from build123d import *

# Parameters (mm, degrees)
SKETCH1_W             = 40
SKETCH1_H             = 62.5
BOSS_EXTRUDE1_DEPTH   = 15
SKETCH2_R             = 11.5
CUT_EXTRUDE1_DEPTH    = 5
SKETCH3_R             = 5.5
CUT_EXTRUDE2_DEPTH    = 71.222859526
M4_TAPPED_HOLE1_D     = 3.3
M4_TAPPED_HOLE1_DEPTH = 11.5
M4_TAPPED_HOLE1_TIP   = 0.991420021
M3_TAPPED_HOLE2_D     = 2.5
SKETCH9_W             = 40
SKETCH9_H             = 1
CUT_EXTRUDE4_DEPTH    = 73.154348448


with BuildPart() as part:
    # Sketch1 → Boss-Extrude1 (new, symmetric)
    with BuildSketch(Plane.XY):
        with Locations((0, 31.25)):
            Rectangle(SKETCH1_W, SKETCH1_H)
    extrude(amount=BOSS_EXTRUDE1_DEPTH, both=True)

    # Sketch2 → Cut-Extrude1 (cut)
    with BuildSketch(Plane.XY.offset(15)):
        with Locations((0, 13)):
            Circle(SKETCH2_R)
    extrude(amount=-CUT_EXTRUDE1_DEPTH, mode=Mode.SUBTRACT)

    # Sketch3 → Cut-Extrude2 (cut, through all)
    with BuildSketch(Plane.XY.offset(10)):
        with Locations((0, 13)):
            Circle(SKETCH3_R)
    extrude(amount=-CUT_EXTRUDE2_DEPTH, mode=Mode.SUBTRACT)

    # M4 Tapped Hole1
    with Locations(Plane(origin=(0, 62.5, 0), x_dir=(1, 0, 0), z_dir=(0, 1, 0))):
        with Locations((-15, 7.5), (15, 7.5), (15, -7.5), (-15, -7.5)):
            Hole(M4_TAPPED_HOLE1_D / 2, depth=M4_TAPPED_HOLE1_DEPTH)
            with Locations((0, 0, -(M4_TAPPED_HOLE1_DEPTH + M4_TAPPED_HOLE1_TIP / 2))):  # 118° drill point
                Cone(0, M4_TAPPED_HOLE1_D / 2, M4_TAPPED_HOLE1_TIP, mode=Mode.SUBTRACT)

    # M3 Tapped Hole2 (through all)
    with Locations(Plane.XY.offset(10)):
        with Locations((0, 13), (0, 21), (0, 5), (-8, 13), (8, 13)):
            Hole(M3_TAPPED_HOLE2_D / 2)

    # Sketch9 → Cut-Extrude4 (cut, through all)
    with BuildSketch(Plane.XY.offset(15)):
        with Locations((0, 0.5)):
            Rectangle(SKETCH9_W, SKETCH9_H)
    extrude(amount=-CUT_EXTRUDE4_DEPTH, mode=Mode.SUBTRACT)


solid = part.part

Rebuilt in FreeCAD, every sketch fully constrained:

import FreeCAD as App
import Part
import Sketcher

doc = App.newDocument("Part")
body = doc.addObject("PartDesign::Body", "Body")

# Sketch on XY plane
sketch1 = doc.addObject("Sketcher::SketchObject", "Sketch")
body.addObject(sketch1)
sketch1.AttachmentSupport = (doc.XY_Plane, [""])
sketch1.MapMode = "FlatFace"
sketch1.addGeometry(Part.LineSegment(App.Vector(-20, 62, 0), App.Vector(-20, 0, 0)), False)
sketch1.addGeometry(Part.LineSegment(App.Vector(-20, 0, 0), App.Vector(20, 0, 0)), False)
sketch1.addGeometry(Part.LineSegment(App.Vector(20, 0, 0), App.Vector(20, 62, 0)), False)
sketch1.addGeometry(Part.LineSegment(App.Vector(20, 62, 0), App.Vector(-20, 62, 0)), False)
sketch1.addConstraint(Sketcher.Constraint("Coincident", 0, 2, 1, 1))
sketch1.addConstraint(Sketcher.Constraint("Coincident", 1, 2, 2, 1))
sketch1.addConstraint(Sketcher.Constraint("Coincident", 2, 2, 3, 1))
sketch1.addConstraint(Sketcher.Constraint("Coincident", 3, 2, 0, 1))
sketch1.addConstraint(Sketcher.Constraint("Vertical", 0))
sketch1.addConstraint(Sketcher.Constraint("Horizontal", 1))
sketch1.addConstraint(Sketcher.Constraint("Vertical", 2))
sketch1.addConstraint(Sketcher.Constraint("Horizontal", 3))
sketch1.addConstraint(Sketcher.Constraint("Symmetric", 0, 2, 1, 2, -1, 1))
sketch1.addConstraint(Sketcher.Constraint("DistanceX", 1, 1, 1, 2, 40.0))
sketch1.addConstraint(Sketcher.Constraint("DistanceY", 0, 2, 0, 1, 62.5))
pad1 = doc.addObject("PartDesign::Pad", "Pad")
body.addObject(pad1)
pad1.Profile = sketch1
pad1.Length = 30
pad1.Midplane = True

# Sketch on XY plane
sketch2 = doc.addObject("Sketcher::SketchObject", "Sketch001")
body.addObject(sketch2)
sketch2.AttachmentSupport = (doc.XY_Plane, [""])
sketch2.MapMode = "FlatFace"
sketch2.AttachmentOffset = App.Placement(App.Vector(0, 0, 15), App.Rotation())
sketch2.addGeometry(Part.Circle(App.Vector(0, 13, 0), App.Vector(0, 0, 1), 12), False)
sketch2.addConstraint(Sketcher.Constraint("PointOnObject", 0, 3, -2))
sketch2.addConstraint(Sketcher.Constraint("Diameter", 0, 23.0))
sketch2.addConstraint(Sketcher.Constraint("DistanceY", -1, 1, 0, 3, 13.0))
pocket1 = doc.addObject("PartDesign::Pocket", "Pocket")
body.addObject(pocket1)
pocket1.Profile = sketch2
pocket1.Length = 5

# Sketch on XY plane
sketch3 = doc.addObject("Sketcher::SketchObject", "Sketch002")
body.addObject(sketch3)
sketch3.AttachmentSupport = (doc.XY_Plane, [""])
sketch3.MapMode = "FlatFace"
sketch3.AttachmentOffset = App.Placement(App.Vector(0, 0, 10), App.Rotation())
sketch3.addGeometry(Part.Circle(App.Vector(0, 13, 0), App.Vector(0, 0, 1), 6), False)
sketch3.addConstraint(Sketcher.Constraint("PointOnObject", 0, 3, -2))
sketch3.addConstraint(Sketcher.Constraint("Diameter", 0, 11.0))
sketch3.addConstraint(Sketcher.Constraint("DistanceY", -1, 1, 0, 3, 13.0))
pocket2 = doc.addObject("PartDesign::Pocket", "Pocket001")
body.addObject(pocket2)
pocket2.Profile = sketch3
pocket2.Type = "ThroughAll"

# Sketch on XZ plane
sketch4 = doc.addObject("Sketcher::SketchObject", "Sketch003")
body.addObject(sketch4)
sketch4.AttachmentSupport = (doc.XZ_Plane, [""])
sketch4.MapMode = "FlatFace"
sketch4.AttachmentOffset = App.Placement(App.Vector(0, 0, -62.5), App.Rotation())
sketch4.addGeometry(Part.Circle(App.Vector(-15, -7.5, 0), App.Vector(0, 0, 1), 1.6), False)
sketch4.addGeometry(Part.Circle(App.Vector(15, -7.5, 0), App.Vector(0, 0, 1), 1.6), False)
sketch4.addGeometry(Part.Circle(App.Vector(15, 7.5, 0), App.Vector(0, 0, 1), 1.6), False)
sketch4.addGeometry(Part.Circle(App.Vector(-15, 7.5, 0), App.Vector(0, 0, 1), 1.6), False)
sketch4.addConstraint(Sketcher.Constraint("Equal", 0, 1))
sketch4.addConstraint(Sketcher.Constraint("Equal", 1, 2))
sketch4.addConstraint(Sketcher.Constraint("Equal", 2, 3))
sketch4.addConstraint(Sketcher.Constraint("Symmetric", 0, 3, 2, 3, -1, 1))
sketch4.addConstraint(Sketcher.Constraint("Symmetric", 1, 3, 3, 3, -1, 1))
sketch4.addConstraint(Sketcher.Constraint("Symmetric", 0, 3, 1, 3, -2))
sketch4.addConstraint(Sketcher.Constraint("Diameter", 0, 3.3))
sketch4.addConstraint(Sketcher.Constraint("DistanceX", 0, 3, -1, 1, 15.0))
sketch4.addConstraint(Sketcher.Constraint("DistanceY", 1, 3, 2, 3, 15.0))
doc.recompute()
hole = doc.addObject("PartDesign::Hole", "Hole")
body.addObject(hole)
hole.Profile = sketch4
hole.ThreadType = "None"
hole.Diameter = 3.3
hole.DepthType = "Dimension"
hole.Depth = 11.5
hole.DrillPoint = "Angled"
hole.DrillPointAngle = 118
hole.Reversed = True

# Sketch on XY plane
sketch5 = doc.addObject("Sketcher::SketchObject", "Sketch004")
body.addObject(sketch5)
sketch5.AttachmentSupport = (doc.XY_Plane, [""])
sketch5.MapMode = "FlatFace"
sketch5.AttachmentOffset = App.Placement(App.Vector(0, 0, 10), App.Rotation())
sketch5.addGeometry(Part.Circle(App.Vector(0, 13, 0), App.Vector(0, 0, 1), 1.2), False)
sketch5.addGeometry(Part.Circle(App.Vector(0, 21, 0), App.Vector(0, 0, 1), 1.2), False)
sketch5.addGeometry(Part.Circle(App.Vector(0, 5, 0), App.Vector(0, 0, 1), 1.2), False)
sketch5.addGeometry(Part.Circle(App.Vector(-8, 13, 0), App.Vector(0, 0, 1), 1.2), False)
sketch5.addGeometry(Part.Circle(App.Vector(8, 13, 0), App.Vector(0, 0, 1), 1.2), False)
sketch5.addConstraint(Sketcher.Constraint("Equal", 0, 1))
sketch5.addConstraint(Sketcher.Constraint("Equal", 1, 2))
sketch5.addConstraint(Sketcher.Constraint("Equal", 2, 3))
sketch5.addConstraint(Sketcher.Constraint("Equal", 3, 4))
sketch5.addConstraint(Sketcher.Constraint("Symmetric", 3, 3, 4, 3, -2))
sketch5.addConstraint(Sketcher.Constraint("PointOnObject", 0, 3, -2))
sketch5.addConstraint(Sketcher.Constraint("PointOnObject", 1, 3, -2))
sketch5.addConstraint(Sketcher.Constraint("PointOnObject", 2, 3, -2))
sketch5.addConstraint(Sketcher.Constraint("Horizontal", 0, 3, 3, 3))
sketch5.addConstraint(Sketcher.Constraint("Diameter", 0, 2.5))
sketch5.addConstraint(Sketcher.Constraint("DistanceY", -1, 1, 0, 3, 13.0))
sketch5.addConstraint(Sketcher.Constraint("DistanceY", -1, 1, 1, 3, 21.0))
sketch5.addConstraint(Sketcher.Constraint("DistanceY", -1, 1, 2, 3, 5.0))
sketch5.addConstraint(Sketcher.Constraint("DistanceX", 3, 3, -1, 1, 8.0))
doc.recompute()
hole2 = doc.addObject("PartDesign::Hole", "Hole001")
body.addObject(hole2)
hole2.Profile = sketch5
hole2.ThreadType = "None"
hole2.Diameter = 2.5
hole2.DepthType = "ThroughAll"

# Sketch on XY plane
sketch6 = doc.addObject("Sketcher::SketchObject", "Sketch005")
body.addObject(sketch6)
sketch6.AttachmentSupport = (doc.XY_Plane, [""])
sketch6.MapMode = "FlatFace"
sketch6.AttachmentOffset = App.Placement(App.Vector(0, 0, 15), App.Rotation())
sketch6.addGeometry(Part.LineSegment(App.Vector(-20, 1, 0), App.Vector(-20, 0, 0)), False)
sketch6.addGeometry(Part.LineSegment(App.Vector(-20, 0, 0), App.Vector(20, 0, 0)), False)
sketch6.addGeometry(Part.LineSegment(App.Vector(20, 0, 0), App.Vector(20, 1, 0)), False)
sketch6.addGeometry(Part.LineSegment(App.Vector(20, 1, 0), App.Vector(-20, 1, 0)), False)
sketch6.addConstraint(Sketcher.Constraint("Coincident", 0, 2, 1, 1))
sketch6.addConstraint(Sketcher.Constraint("Coincident", 1, 2, 2, 1))
sketch6.addConstraint(Sketcher.Constraint("Coincident", 2, 2, 3, 1))
sketch6.addConstraint(Sketcher.Constraint("Coincident", 3, 2, 0, 1))
sketch6.addConstraint(Sketcher.Constraint("Vertical", 0))
sketch6.addConstraint(Sketcher.Constraint("Horizontal", 1))
sketch6.addConstraint(Sketcher.Constraint("Vertical", 2))
sketch6.addConstraint(Sketcher.Constraint("Horizontal", 3))
sketch6.addConstraint(Sketcher.Constraint("Symmetric", 0, 2, 1, 2, -1, 1))
sketch6.addConstraint(Sketcher.Constraint("DistanceX", 1, 1, 1, 2, 40.0))
sketch6.addConstraint(Sketcher.Constraint("DistanceY", 0, 2, 0, 1, 1.0))
pocket3 = doc.addObject("PartDesign::Pocket", "Pocket002")
body.addObject(pocket3)
pocket3.Profile = sketch6
pocket3.Type = "ThroughAll"

doc.recompute()
